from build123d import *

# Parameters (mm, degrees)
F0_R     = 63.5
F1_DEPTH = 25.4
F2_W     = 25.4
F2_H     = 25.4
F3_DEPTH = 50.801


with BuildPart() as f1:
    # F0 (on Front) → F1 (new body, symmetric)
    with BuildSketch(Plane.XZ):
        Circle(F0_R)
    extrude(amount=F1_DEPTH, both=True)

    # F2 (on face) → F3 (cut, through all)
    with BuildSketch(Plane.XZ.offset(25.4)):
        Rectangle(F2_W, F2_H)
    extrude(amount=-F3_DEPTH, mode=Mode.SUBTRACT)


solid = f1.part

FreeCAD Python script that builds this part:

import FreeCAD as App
import Part
import Sketcher

V = App.Vector
Q = App.Units.Quantity


def add_polygon(sketch, points):
    """Adds a closed chain of lines whose ends are joined by coincident constraints."""
    first, n = sketch.GeometryCount, len(points)
    for a, b in zip(points, points[1:] + points[:1]):
        sketch.addGeometry(Part.LineSegment(App.Vector(*a, 0), App.Vector(*b, 0)), False)
    for i in range(n):
        sketch.addConstraint(Sketcher.Constraint("Coincident", first + i, 2, first + (i + 1) % n, 1))

doc = App.newDocument("Part")
body = doc.addObject("PartDesign::Body", "Body")

sketch1 = body.newObject("Sketcher::SketchObject", "Sketch")
sketch1.AttachmentSupport = (doc.getObject("XZ_Plane"), [""])
sketch1.MapMode = "FlatFace"
sketch1.addGeometry(Part.Circle(V(0, 0, 0), V(0, 0, 1), 64), False)
sketch1.addConstraint([
    Sketcher.Constraint("Coincident", 0, 3, -1, 1),
    Sketcher.Constraint("Diameter", 0, Q("5 in")),
])
pad1 = body.newObject("PartDesign::Pad", "Pad")
pad1.Profile = sketch1
pad1.Length = Q("2 in")
pad1.Midplane = True

sketch2 = body.newObject("Sketcher::SketchObject", "Sketch001")
sketch2.AttachmentSupport = (doc.getObject("XZ_Plane"), [""])
sketch2.MapMode = "FlatFace"
sketch2.AttachmentOffset = App.Placement(V(0, 0, 1 * 25.4), App.Rotation())
add_polygon(sketch2, [(-13, 13), (-13, -13), (13, -13), (13, 13)])
sketch2.addConstraint([
    Sketcher.Constraint("Vertical", 0),
    Sketcher.Constraint("Horizontal", 1),
    Sketcher.Constraint("Vertical", 2),
    Sketcher.Constraint("Horizontal", 3),
    Sketcher.Constraint("Symmetric", 0, 2, 2, 2, -1, 1),
    Sketcher.Constraint("Equal", 3, 0),
    Sketcher.Constraint("DistanceX", 1, 1, 1, 2, Q("1 in")),
])
pocket1 = body.newObject("PartDesign::Pocket", "Pocket")
pocket1.Profile = sketch2
pocket1.Type = "ThroughAll"

doc.recompute()
